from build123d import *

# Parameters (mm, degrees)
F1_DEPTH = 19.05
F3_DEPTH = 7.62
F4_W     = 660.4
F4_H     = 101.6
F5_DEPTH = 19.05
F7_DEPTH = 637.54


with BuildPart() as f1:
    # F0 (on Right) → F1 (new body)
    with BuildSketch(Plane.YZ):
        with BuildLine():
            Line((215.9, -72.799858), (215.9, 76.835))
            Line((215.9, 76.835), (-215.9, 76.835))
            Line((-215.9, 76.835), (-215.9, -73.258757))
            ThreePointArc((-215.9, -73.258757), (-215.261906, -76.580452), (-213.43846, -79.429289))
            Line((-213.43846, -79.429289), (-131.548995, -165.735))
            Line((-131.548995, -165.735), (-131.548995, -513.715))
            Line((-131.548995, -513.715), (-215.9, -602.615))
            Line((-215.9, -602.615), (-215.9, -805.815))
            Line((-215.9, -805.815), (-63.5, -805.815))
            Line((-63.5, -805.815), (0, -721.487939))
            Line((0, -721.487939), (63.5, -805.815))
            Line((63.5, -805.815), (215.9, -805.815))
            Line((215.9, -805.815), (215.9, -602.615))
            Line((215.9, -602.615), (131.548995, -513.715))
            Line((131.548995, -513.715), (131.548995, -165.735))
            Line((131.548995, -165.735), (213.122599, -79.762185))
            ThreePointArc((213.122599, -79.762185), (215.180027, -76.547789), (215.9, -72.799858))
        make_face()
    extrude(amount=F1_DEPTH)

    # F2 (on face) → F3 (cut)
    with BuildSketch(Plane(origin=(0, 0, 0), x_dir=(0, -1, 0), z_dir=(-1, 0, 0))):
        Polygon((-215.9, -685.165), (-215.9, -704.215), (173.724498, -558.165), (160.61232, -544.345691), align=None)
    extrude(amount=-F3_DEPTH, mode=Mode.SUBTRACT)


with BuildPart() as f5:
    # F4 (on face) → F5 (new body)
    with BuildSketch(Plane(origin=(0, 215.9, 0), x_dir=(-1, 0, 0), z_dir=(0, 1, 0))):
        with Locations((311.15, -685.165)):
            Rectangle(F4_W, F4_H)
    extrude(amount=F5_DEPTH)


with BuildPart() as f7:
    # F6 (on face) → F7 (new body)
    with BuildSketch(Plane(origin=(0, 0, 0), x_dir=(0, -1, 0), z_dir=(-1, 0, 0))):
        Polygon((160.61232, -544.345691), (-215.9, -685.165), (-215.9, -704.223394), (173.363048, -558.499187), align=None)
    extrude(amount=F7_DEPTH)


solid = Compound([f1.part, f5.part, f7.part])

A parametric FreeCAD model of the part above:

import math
import FreeCAD as App
import Part
import Sketcher
from FreeCAD import Vector
Q = App.Units.Quantity


def add_polygon(sketch, points):
    """Adds a closed chain of lines whose ends are joined by coincident constraints."""
    first, n = sketch.GeometryCount, len(points)
    for a, b in zip(points, points[1:] + points[:1]):
        sketch.addGeometry(Part.LineSegment(App.Vector(*a, 0), App.Vector(*b, 0)), False)
    for i in range(n):
        sketch.addConstraint(Sketcher.Constraint("Coincident", first + i, 2, first + (i + 1) % n, 1))

doc = App.newDocument("Part")
params = doc.addObject("Spreadsheet::Sheet", "Params")
for row, (alias, value) in enumerate([
    ("sketch1_width", "17 in"),
    ("sketch1_width2", "6 in"),
    ("sketch1_height", "8 in"),
    ("sketch1_height2", "13.7 in"),
    ("pad1_length", "0.75 in"),
    ("sketch2_height", "0.75 in"),
    ("sketch2_length", "0.75 in"),
    ("pocket1_length", "0.3 in"),
    ("sketch3_width", "26 in"),
    ("sketch3_height", "4 in"),
    ("pad2_length", "0.75 in"),
    ("sketch4_length", "0.75 in"),
    ("sketch4_length2", "16.364 in"),
    ("pad3_length", "25.1 in"),
], start=1):
    params.set(f"A{row}", alias)
    params.set(f"B{row}", "=" + value)
    params.setAlias(f"B{row}", alias)

body = doc.addObject("PartDesign::Body", "Body")

# Sketch on YZ plane
sketch1 = body.newObject("Sketcher::SketchObject", "Sketch")
sketch1.AttachmentSupport = (doc.getObject("YZ_Plane"), [""])
sketch1.MapMode = "FlatFace"
sketch1.addGeometry(Part.LineSegment(Vector(215.9, -72.799858, 0), Vector(215.9, 76.835, 0)), False)
sketch1.addGeometry(Part.LineSegment(Vector(215.9, 76.835, 0), Vector(-215.9, 76.835, 0)), False)
sketch1.addGeometry(Part.LineSegment(Vector(-215.9, 76.835, 0), Vector(-215.9, -73.258757, 0)), False)
sketch1.addGeometry(Part.ArcOfCircle(Part.Circle(Vector(-206.935153, -73.258756, 0), Vector(0, 0, 1), 8.964847), math.radians(-179.999991), math.radians(-136.504056)), False)
sketch1.addGeometry(Part.LineSegment(Vector(-213.43846, -79.429289, 0), Vector(-131.548995, -165.735, 0)), False)
sketch1.addGeometry(Part.LineSegment(Vector(-131.548995, -165.735, 0), Vector(-131.548995, -513.715, 0)), False)
sketch1.addGeometry(Part.LineSegment(Vector(-131.548995, -513.715, 0), Vector(-215.9, -602.615, 0)), False)
sketch1.addGeometry(Part.LineSegment(Vector(-215.9, -602.615, 0), Vector(-215.9, -805.815, 0)), False)
sketch1.addGeometry(Part.LineSegment(Vector(-215.9, -805.815, 0), Vector(-63.5, -805.815, 0)), False)
sketch1.addGeometry(Part.LineSegment(Vector(-63.5, -805.815, 0), Vector(0, -721.487939, 0)), False)
sketch1.addGeometry(Part.LineSegment(Vector(0, -721.487939, 0), Vector(63.5, -805.815, 0)), False)
sketch1.addGeometry(Part.LineSegment(Vector(63.5, -805.815, 0), Vector(215.9, -805.815, 0)), False)
sketch1.addGeometry(Part.LineSegment(Vector(215.9, -805.815, 0), Vector(215.9, -602.615, 0)), False)
sketch1.addGeometry(Part.LineSegment(Vector(215.9, -602.615, 0), Vector(131.548995, -513.715, 0)), False)
sketch1.addGeometry(Part.LineSegment(Vector(131.548995, -513.715, 0), Vector(131.548995, -165.735, 0)), False)
sketch1.addGeometry(Part.LineSegment(Vector(131.548995, -165.735, 0), Vector(213.122599, -79.762185, 0)), False)
sketch1.addGeometry(Part.ArcOfCircle(Part.Circle(Vector(205.784797, -72.799858, 0), Vector(0, 0, 1), 10.115203), math.radians(-43.495943), math.radians(0.000001)), False)
sketch1.addConstraint(Sketcher.Constraint("Coincident", 0, 2, 1, 1))
sketch1.addConstraint(Sketcher.Constraint("Coincident", 1, 2, 2, 1))
sketch1.addConstraint(Sketcher.Constraint("Tangent", 2, 2, 3, 1))
sketch1.addConstraint(Sketcher.Constraint("Tangent", 3, 2, 4, 1))
sketch1.addConstraint(Sketcher.Constraint("Coincident", 4, 2, 5, 1))
sketch1.addConstraint(Sketcher.Constraint("Coincident", 5, 2, 6, 1))
sketch1.addConstraint(Sketcher.Constraint("Coincident", 6, 2, 7, 1))
sketch1.addConstraint(Sketcher.Constraint("Coincident", 7, 2, 8, 1))
sketch1.addConstraint(Sketcher.Constraint("Coincident", 8, 2, 9, 1))
sketch1.addConstraint(Sketcher.Constraint("Coincident", 9, 2, 10, 1))
sketch1.addConstraint(Sketcher.Constraint("Coincident", 10, 2, 11, 1))
sketch1.addConstraint(Sketcher.Constraint("Coincident", 11, 2, 12, 1))
sketch1.addConstraint(Sketcher.Constraint("Coincident", 12, 2, 13, 1))
sketch1.addConstraint(Sketcher.Constraint("Coincident", 13, 2, 14, 1))
sketch1.addConstraint(Sketcher.Constraint("Coincident", 14, 2, 15, 1))
sketch1.addConstraint(Sketcher.Constraint("Tangent", 15, 2, 16, 1))
sketch1.addConstraint(Sketcher.Constraint("Tangent", 16, 2, 0, 1))
sketch1.addConstraint(Sketcher.Constraint("Vertical", 0))
sketch1.addConstraint(Sketcher.Constraint("Horizontal", 1))
sketch1.addConstraint(Sketcher.Constraint("Vertical", 2))
sketch1.addConstraint(Sketcher.Constraint("Vertical", 5))
sketch1.addConstraint(Sketcher.Constraint("Vertical", 7))
sketch1.addConstraint(Sketcher.Constraint("Horizontal", 8))
sketch1.addConstraint(Sketcher.Constraint("Horizontal", 11))
sketch1.addConstraint(Sketcher.Constraint("Vertical", 12))
sketch1.addConstraint(Sketcher.Constraint("Vertical", 14))
sketch1.addConstraint(Sketcher.Constraint("Symmetric", 8, 2, 10, 2, -2))
sketch1.addConstraint(Sketcher.Constraint("Symmetric", 6, 2, 12, 2, -2))
sketch1.addConstraint(Sketcher.Constraint("Symmetric", 5, 2, 13, 2, -2))
sketch1.addConstraint(Sketcher.Constraint("PointOnObject", 9, 2, -2))
sketch1.addConstraint(Sketcher.Constraint("Parallel", 4, 13))
sketch1.addConstraint(Sketcher.Constraint("Parallel", 6, 15))
sketch1.addConstraint(Sketcher.Constraint("Horizontal", 4, 2, 14, 2))
sketch1.addConstraint(Sketcher.Constraint("Vertical", 2, 2, 6, 2))
sketch1.addConstraint(Sketcher.Constraint("Vertical", 0, 2, 11, 2))
sketch1.addConstraint(Sketcher.Constraint("DistanceX", 1, 2, 1, 1, Q("17 in")))
sketch1.addConstraint(Sketcher.Constraint("DistanceX", 8, 1, 8, 2, Q("6 in")))
sketch1.addConstraint(Sketcher.Constraint("DistanceY", 7, 2, 7, 1, Q("8 in")))
sketch1.addConstraint(Sketcher.Constraint("DistanceY", 5, 2, 5, 1, Q("13.7 in")))
sketch1.addConstraint(Sketcher.Constraint("DistanceY", 6, 2, 5, 2, Q("3.5 in")))
sketch1.addConstraint(Sketcher.Constraint("DistanceY", 4, 2, 1, 2, Q("9.55 in")))
sketch1.addConstraint(Sketcher.Constraint("DistanceY", -1, 1, 0, 2, Q("3.025 in")))
sketch1.addConstraint(Sketcher.Constraint("Radius", 3, Q("8.964847 mm")))
sketch1.addConstraint(Sketcher.Constraint("Radius", 16, Q("10.115203 mm")))
sketch1.addConstraint(Sketcher.Constraint("DistanceY", 0, 1, 0, 2, Q("149.634858 mm")))
sketch1.addConstraint(Sketcher.Constraint("DistanceY", 9, 2, -1, 1, Q("721.487939 mm")))
sketch1.setExpression("Constraints[35]", "Params.sketch1_width")
sketch1.setExpression("Constraints[36]", "Params.sketch1_width2")
sketch1.setExpression("Constraints[37]", "Params.sketch1_height")
sketch1.setExpression("Constraints[38]", "Params.sketch1_height2")
pad1 = body.newObject("PartDesign::Pad", "Pad")
pad1.Profile = sketch1
pad1.setExpression("Length", "Params.pad1_length")

# Sketch on YZ plane
sketch2 = body.newObject("Sketcher::SketchObject", "Sketch001")
sketch2.AttachmentSupport = (doc.getObject("YZ_Plane"), [""])
sketch2.MapMode = "FlatFace"
add_polygon(sketch2, [(215.9, -685.165), (215.9, -704.215), (-173.724498, -558.165), (-160.61232, -544.345691)])  # lines 0-3
sketch2.addConstraint(Sketcher.Constraint("Vertical", 0))
sketch2.addConstraint(Sketcher.Constraint("DistanceY", 3, 2, 1, 2, Q("5 in")))
sketch2.addConstraint(Sketcher.Constraint("DistanceY", 0, 2, 0, 1, Q("0.75 in")))
sketch2.addConstraint(Sketcher.Constraint("DistanceX", -1, 1, 0, 2, Q("8.5 in")))
sketch2.addConstraint(Sketcher.Constraint("Distance", 2, Q("0.75 in")))
sketch2.addConstraint(Sketcher.Constraint("DistanceY", 0, 2, -1, 1, Q("27.725 in")))
sketch2.addConstraint(Sketcher.Constraint("DistanceX", 1, 2, -1, 1, Q("173.724498 mm")))
sketch2.addConstraint(Sketcher.Constraint("DistanceX", 2, 2, -1, 1, Q("160.61232 mm")))
sketch2.setExpression("Constraints[6]", "Params.sketch2_height")
sketch2.setExpression("Constraints[8]", "Params.sketch2_length")
pocket1 = body.newObject("PartDesign::Pocket", "Pocket")
pocket1.Profile = sketch2
pocket1.setExpression("Length", "Params.pocket1_length")
pocket1.Reversed = True
body2 = doc.addObject("PartDesign::Body", "Body001")

# Sketch on XZ plane
sketch3 = body2.newObject("Sketcher::SketchObject", "Sketch002")
sketch3.AttachmentSupport = (doc.getObject("XZ_Plane001"), [""])
sketch3.MapMode = "FlatFace"
sketch3.AttachmentOffset = App.Placement(Vector(0, 0, -8.5 * 25.4), App.Rotation())
add_polygon(sketch3, [(19.05, -634.365), (19.05, -735.965), (-641.35, -735.965), (-641.35, -634.365)])  # lines 0-3
sketch3.addConstraint(Sketcher.Constraint("Vertical", 0))
sketch3.addConstraint(Sketcher.Constraint("Horizontal", 1))
sketch3.addConstraint(Sketcher.Constraint("Vertical", 2))
sketch3.addConstraint(Sketcher.Constraint("Horizontal", 3))
sketch3.addConstraint(Sketcher.Constraint("DistanceX", 1, 2, 1, 1, Q("26 in")))
sketch3.addConstraint(Sketcher.Constraint("DistanceY", 0, 2, 0, 1, Q("4 in")))
sketch3.addConstraint(Sketcher.Constraint("DistanceX", -1, 1, 0, 2, Q("0.75 in")))
sketch3.addConstraint(Sketcher.Constraint("DistanceY", 0, 2, -1, 1, Q("28.975 in")))
sketch3.setExpression("Constraints[8]", "Params.sketch3_width")
sketch3.setExpression("Constraints[9]", "Params.sketch3_height")
pad2 = body2.newObject("PartDesign::Pad", "Pad001")
pad2.Profile = sketch3
pad2.setExpression("Length", "Params.pad2_length")
pad2.Reversed = True
body3 = doc.addObject("PartDesign::Body", "Body002")

# Sketch on YZ plane
sketch4 = body3.newObject("Sketcher::SketchObject", "Sketch003")
sketch4.AttachmentSupport = (doc.getObject("YZ_Plane002"), [""])
sketch4.MapMode = "FlatFace"
add_polygon(sketch4, [(-160.61232, -544.345691), (215.9, -685.165), (215.9, -704.223394), (-173.363048, -558.499187)])  # lines 0-3
sketch4.addConstraint(Sketcher.Constraint("Vertical", 1))
sketch4.addConstraint(Sketcher.Constraint("DistanceX", -1, 1, 0, 2, Q("8.5 in")))
sketch4.addConstraint(Sketcher.Constraint("Distance", 3, Q("0.75 in")))
sketch4.addConstraint(Sketcher.Constraint("Distance", 2, Q("16.364 in")))
sketch4.addConstraint(Sketcher.Constraint("DistanceY", 0, 2, -1, 1, Q("26.975 in")))
sketch4.addConstraint(Sketcher.Constraint("DistanceY", 1, 2, 1, 1, Q("19.058394 mm")))
sketch4.addConstraint(Sketcher.Constraint("DistanceX", 2, 2, -1, 1, Q("173.363048 mm")))
sketch4.addConstraint(Sketcher.Constraint("DistanceX", 3, 2, -1, 1, Q("160.61232 mm")))
sketch4.setExpression("Constraints[6]", "Params.sketch4_length")
sketch4.setExpression("Constraints[7]", "Params.sketch4_length2")
pad3 = body3.newObject("PartDesign::Pad", "Pad002")
pad3.Profile = sketch4
pad3.setExpression("Length", "Params.pad3_length")
pad3.Reversed = True

doc.recompute()
